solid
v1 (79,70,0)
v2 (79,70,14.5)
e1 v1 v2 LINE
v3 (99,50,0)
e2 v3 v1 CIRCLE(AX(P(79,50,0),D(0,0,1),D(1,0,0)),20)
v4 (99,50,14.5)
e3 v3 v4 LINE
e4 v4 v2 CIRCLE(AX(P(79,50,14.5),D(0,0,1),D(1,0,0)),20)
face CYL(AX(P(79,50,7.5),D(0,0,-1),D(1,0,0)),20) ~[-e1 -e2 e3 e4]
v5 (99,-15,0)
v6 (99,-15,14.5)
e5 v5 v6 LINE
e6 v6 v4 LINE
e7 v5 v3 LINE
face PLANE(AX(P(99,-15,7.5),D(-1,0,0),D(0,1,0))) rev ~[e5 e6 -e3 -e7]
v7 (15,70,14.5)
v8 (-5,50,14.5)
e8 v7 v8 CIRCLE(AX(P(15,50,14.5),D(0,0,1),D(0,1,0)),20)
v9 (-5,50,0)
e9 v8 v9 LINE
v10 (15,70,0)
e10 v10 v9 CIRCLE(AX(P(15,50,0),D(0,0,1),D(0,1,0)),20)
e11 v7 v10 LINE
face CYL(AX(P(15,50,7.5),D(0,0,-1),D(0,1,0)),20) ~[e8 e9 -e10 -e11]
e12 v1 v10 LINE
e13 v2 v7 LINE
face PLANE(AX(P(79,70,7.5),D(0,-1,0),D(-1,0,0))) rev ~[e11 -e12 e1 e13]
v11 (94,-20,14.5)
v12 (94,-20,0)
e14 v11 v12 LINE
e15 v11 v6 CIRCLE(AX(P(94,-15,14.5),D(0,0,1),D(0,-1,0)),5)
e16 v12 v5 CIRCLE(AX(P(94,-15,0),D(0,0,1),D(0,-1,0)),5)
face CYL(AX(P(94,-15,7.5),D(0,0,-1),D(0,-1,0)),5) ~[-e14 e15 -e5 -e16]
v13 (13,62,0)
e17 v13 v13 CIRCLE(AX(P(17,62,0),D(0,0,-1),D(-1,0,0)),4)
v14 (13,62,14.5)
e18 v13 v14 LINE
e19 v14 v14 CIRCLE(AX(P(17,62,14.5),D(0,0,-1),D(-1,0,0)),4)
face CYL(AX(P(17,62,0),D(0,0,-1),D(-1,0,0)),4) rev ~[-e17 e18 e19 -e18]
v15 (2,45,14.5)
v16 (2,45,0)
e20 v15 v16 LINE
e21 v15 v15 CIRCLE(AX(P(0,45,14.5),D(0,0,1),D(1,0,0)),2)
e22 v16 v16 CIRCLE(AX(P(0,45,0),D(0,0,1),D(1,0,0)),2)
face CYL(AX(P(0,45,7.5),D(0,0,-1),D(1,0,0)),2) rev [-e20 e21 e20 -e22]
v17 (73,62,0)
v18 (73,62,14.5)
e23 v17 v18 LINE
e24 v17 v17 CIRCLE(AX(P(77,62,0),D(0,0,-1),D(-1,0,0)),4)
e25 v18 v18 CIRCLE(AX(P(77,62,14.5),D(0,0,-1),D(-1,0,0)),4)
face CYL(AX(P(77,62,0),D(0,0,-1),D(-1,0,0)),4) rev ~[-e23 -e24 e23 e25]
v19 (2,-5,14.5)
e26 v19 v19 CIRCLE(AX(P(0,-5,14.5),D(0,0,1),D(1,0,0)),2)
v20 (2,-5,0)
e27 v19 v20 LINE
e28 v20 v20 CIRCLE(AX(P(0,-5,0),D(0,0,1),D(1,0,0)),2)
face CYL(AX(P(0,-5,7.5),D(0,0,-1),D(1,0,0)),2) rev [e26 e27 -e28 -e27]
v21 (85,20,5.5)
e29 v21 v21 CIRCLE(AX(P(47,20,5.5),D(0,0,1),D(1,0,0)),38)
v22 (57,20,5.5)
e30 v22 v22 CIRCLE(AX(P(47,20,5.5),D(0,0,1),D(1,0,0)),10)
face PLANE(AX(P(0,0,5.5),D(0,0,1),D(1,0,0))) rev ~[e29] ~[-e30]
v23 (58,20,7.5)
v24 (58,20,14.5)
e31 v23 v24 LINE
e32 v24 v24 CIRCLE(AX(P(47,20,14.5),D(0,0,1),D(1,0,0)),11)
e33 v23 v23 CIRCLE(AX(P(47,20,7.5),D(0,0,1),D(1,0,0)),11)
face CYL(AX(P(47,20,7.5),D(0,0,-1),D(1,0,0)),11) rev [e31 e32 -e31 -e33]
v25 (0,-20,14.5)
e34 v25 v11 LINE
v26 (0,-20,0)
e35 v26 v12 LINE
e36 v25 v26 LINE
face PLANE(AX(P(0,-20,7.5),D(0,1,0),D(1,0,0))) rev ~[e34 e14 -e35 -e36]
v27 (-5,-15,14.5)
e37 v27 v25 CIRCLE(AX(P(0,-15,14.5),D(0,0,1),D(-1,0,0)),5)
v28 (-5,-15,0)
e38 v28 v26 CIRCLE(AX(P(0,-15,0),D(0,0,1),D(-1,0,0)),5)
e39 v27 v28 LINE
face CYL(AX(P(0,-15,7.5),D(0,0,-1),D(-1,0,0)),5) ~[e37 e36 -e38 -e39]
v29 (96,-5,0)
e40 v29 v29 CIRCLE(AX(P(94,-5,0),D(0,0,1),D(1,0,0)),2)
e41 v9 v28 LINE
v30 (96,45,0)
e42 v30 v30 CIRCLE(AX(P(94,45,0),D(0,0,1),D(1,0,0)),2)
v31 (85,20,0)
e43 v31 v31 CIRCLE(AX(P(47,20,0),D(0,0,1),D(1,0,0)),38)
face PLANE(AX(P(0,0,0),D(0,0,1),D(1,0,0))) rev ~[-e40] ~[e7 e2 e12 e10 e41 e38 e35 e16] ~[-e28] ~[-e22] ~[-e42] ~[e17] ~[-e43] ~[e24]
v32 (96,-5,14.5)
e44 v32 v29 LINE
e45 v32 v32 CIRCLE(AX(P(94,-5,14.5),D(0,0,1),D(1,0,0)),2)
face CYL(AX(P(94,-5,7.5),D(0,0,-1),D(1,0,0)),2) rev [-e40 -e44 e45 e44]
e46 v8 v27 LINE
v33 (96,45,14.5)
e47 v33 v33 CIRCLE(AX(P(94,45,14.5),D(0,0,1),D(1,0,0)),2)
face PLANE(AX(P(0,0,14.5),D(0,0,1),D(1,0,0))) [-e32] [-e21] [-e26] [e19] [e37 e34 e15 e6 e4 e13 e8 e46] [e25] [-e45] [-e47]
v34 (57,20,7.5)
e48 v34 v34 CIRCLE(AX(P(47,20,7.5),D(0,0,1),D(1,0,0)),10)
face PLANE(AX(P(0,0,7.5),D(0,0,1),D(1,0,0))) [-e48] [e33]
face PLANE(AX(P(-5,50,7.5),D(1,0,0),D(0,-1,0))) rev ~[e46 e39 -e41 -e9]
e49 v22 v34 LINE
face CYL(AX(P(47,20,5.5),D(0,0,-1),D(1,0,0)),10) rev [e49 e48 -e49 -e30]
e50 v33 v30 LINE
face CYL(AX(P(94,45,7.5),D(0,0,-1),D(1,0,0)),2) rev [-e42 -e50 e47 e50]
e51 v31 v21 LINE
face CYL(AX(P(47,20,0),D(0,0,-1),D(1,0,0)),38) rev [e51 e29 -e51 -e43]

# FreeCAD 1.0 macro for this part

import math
import FreeCAD as App
import Part
import Sketcher
from FreeCAD import Vector
Q = App.Units.Quantity

doc = App.newDocument("Part")
body = doc.addObject("PartDesign::Body", "Body")

# Sketch on XY plane
sketch1 = doc.addObject("Sketcher::SketchObject", "Sketch")
body.addObject(sketch1)
sketch1.AttachmentSupport = (doc.XY_Plane, [""])
sketch1.MapMode = "FlatFace"
sketch1.addGeometry([
    Part.LineSegment(Vector(0, -20, 0), Vector(94, -20, 0)),  # 0
    Part.ArcOfCircle(Part.Circle(Vector(94, -15, 0), Vector(0, 0, 1), 5), math.radians(-90), math.radians(0)),  # 1
    Part.LineSegment(Vector(99, -15, 0), Vector(99, 50, 0)),  # 2
    Part.ArcOfCircle(Part.Circle(Vector(79, 50, 0), Vector(0, 0, 1), 20), math.radians(0), math.radians(90)),  # 3
    Part.LineSegment(Vector(79, 70, 0), Vector(15, 70, 0)),  # 4
    Part.ArcOfCircle(Part.Circle(Vector(15, 50, 0), Vector(0, 0, 1), 20), math.radians(90), math.radians(180)),  # 5
    Part.LineSegment(Vector(-5, 50, 0), Vector(-5, -15, 0)),  # 6
    Part.ArcOfCircle(Part.Circle(Vector(0, -15, 0), Vector(0, 0, 1), 5), math.radians(180), math.radians(270)),  # 7
    Part.Circle(Vector(0, -5, 0), Vector(0, 0, 1), 2),  # 8
    Part.Circle(Vector(94, -5, 0), Vector(0, 0, 1), 2),  # 9
    Part.Circle(Vector(0, 45, 0), Vector(0, 0, 1), 2),  # 10
    Part.Circle(Vector(94, 45, 0), Vector(0, 0, 1), 2),  # 11
    Part.Circle(Vector(47, 20, 0), Vector(0, 0, 1), 38),  # 12
], False)
sketch1.addConstraint([
    Sketcher.Constraint("Tangent", 0, 2, 1, 1),
    Sketcher.Constraint("Tangent", 1, 2, 2, 1),
    Sketcher.Constraint("Tangent", 2, 2, 3, 1),
    Sketcher.Constraint("Tangent", 3, 2, 4, 1),
    Sketcher.Constraint("Tangent", 4, 2, 5, 1),
    Sketcher.Constraint("Tangent", 5, 2, 6, 1),
    Sketcher.Constraint("Tangent", 6, 2, 7, 1),
    Sketcher.Constraint("Tangent", 7, 2, 0, 1),
    Sketcher.Constraint("Horizontal", 0),
    Sketcher.Constraint("Vertical", 2),
    Sketcher.Constraint("Horizontal", 4),
    Sketcher.Constraint("Vertical", 6),
    Sketcher.Constraint("Equal", 3, 5),
    Sketcher.Constraint("Equal", 1, 7),
    Sketcher.Constraint("Equal", 8, 9),
    Sketcher.Constraint("Equal", 9, 10),
    Sketcher.Constraint("Equal", 10, 11),
    Sketcher.Constraint("PointOnObject", 7, 3, -2),
    Sketcher.Constraint("PointOnObject", 8, 3, -2),
    Sketcher.Constraint("PointOnObject", 10, 3, -2),
    Sketcher.Constraint("Horizontal", 8, 3, 9, 3),
    Sketcher.Constraint("Horizontal", 10, 3, 11, 3),
    Sketcher.Constraint("Vertical", 1, 3, 9, 3),
    Sketcher.Constraint("Vertical", 9, 3, 11, 3),
    Sketcher.Constraint("Diameter", 12, Q("76 mm")),
    Sketcher.Constraint("Diameter", 8, Q("4 mm")),
    Sketcher.Constraint("Radius", 1, Q("5 mm")),
    Sketcher.Constraint("Radius", 3, Q("20 mm")),
    Sketcher.Constraint("DistanceX", 0, 1, 0, 2, Q("94 mm")),
    Sketcher.Constraint("DistanceY", 2, 1, 2, 2, Q("65 mm")),
    Sketcher.Constraint("DistanceY", 1, 3, -1, 1, Q("15 mm")),
    Sketcher.Constraint("DistanceY", 8, 3, -1, 1, Q("5 mm")),
    Sketcher.Constraint("DistanceY", -1, 1, 10, 3, Q("45 mm")),
    Sketcher.Constraint("DistanceX", -1, 1, 12, 3, Q("47 mm")),
    Sketcher.Constraint("DistanceY", -1, 1, 12, 3, Q("20 mm")),
])
pad1 = doc.addObject("PartDesign::Pad", "Pad")
body.addObject(pad1)
pad1.Profile = sketch1
pad1.Length = 5.5

# Sketch on XY plane
sketch2 = doc.addObject("Sketcher::SketchObject", "Sketch001")
body.addObject(sketch2)
sketch2.AttachmentSupport = (doc.XY_Plane, [""])
sketch2.MapMode = "FlatFace"
sketch2.AttachmentOffset = App.Placement(Vector(0, 0, 5.5), App.Rotation())
sketch2.addGeometry([
    Part.ArcOfCircle(Part.Circle(Vector(94, -15, 0), Vector(0, 0, 1), 5), math.radians(-90), math.radians(0)),  # 0
    Part.LineSegment(Vector(99, -15, 0), Vector(99, 50, 0)),  # 1
    Part.ArcOfCircle(Part.Circle(Vector(79, 50, 0), Vector(0, 0, 1), 20), math.radians(0), math.radians(90)),  # 2
    Part.LineSegment(Vector(79, 70, 0), Vector(15, 70, 0)),  # 3
    Part.ArcOfCircle(Part.Circle(Vector(15, 50, 0), Vector(0, 0, 1), 20), math.radians(90), math.radians(180)),  # 4
    Part.LineSegment(Vector(-5, 50, 0), Vector(-5, -15, 0)),  # 5
    Part.ArcOfCircle(Part.Circle(Vector(0, -15, 0), Vector(0, 0, 1), 5), math.radians(180), math.radians(270)),  # 6
    Part.LineSegment(Vector(0, -20, 0), Vector(94, -20, 0)),  # 7
    Part.Circle(Vector(47, 20, 0), Vector(0, 0, 1), 10),  # 8
    Part.Circle(Vector(0, -5, 0), Vector(0, 0, 1), 2),  # 9
    Part.Circle(Vector(94, -5, 0), Vector(0, 0, 1), 2),  # 10
    Part.Circle(Vector(94, 45, 0), Vector(0, 0, 1), 2),  # 11
    Part.Circle(Vector(0, 45, 0), Vector(0, 0, 1), 2),  # 12
], False)
sketch2.addConstraint([
    Sketcher.Constraint("Tangent", 0, 2, 1, 1),
    Sketcher.Constraint("Tangent", 1, 2, 2, 1),
    Sketcher.Constraint("Tangent", 2, 2, 3, 1),
    Sketcher.Constraint("Tangent", 3, 2, 4, 1),
    Sketcher.Constraint("Tangent", 4, 2, 5, 1),
    Sketcher.Constraint("Tangent", 5, 2, 6, 1),
    Sketcher.Constraint("Tangent", 6, 2, 7, 1),
    Sketcher.Constraint("Tangent", 7, 2, 0, 1),
    Sketcher.Constraint("Vertical", 1),
    Sketcher.Constraint("Horizontal", 3),
    Sketcher.Constraint("Vertical", 5),
    Sketcher.Constraint("Horizontal", 7),
    Sketcher.Constraint("Equal", 2, 4),
    Sketcher.Constraint("Equal", 0, 6),
    Sketcher.Constraint("Equal", 9, 10),
    Sketcher.Constraint("Equal", 10, 11),
    Sketcher.Constraint("Equal", 11, 12),
    Sketcher.Constraint("PointOnObject", 6, 3, -2),
    Sketcher.Constraint("PointOnObject", 9, 3, -2),
    Sketcher.Constraint("PointOnObject", 12, 3, -2),
    Sketcher.Constraint("Horizontal", 9, 3, 10, 3),
    Sketcher.Constraint("Horizontal", 11, 3, 12, 3),
    Sketcher.Constraint("Vertical", 0, 3, 10, 3),
    Sketcher.Constraint("Vertical", 10, 3, 11, 3),
    Sketcher.Constraint("Diameter", 8, Q("20 mm")),
    Sketcher.Constraint("Radius", 2, Q("20 mm")),
    Sketcher.Constraint("Diameter", 9, Q("4 mm")),
    Sketcher.Constraint("DistanceY", -1, 1, 8, 3, Q("20 mm")),
    Sketcher.Constraint("DistanceY", 6, 2, -1, 1, Q("20 mm")),
    Sketcher.Constraint("Radius", 0, Q("5 mm")),
    Sketcher.Constraint("DistanceX", 3, 2, 3, 1, Q("64 mm")),
    Sketcher.Constraint("DistanceY", 1, 1, 1, 2, Q("65 mm")),
    Sketcher.Constraint("DistanceX", -1, 1, 8, 3, Q("47 mm")),
    Sketcher.Constraint("DistanceY", 9, 3, -1, 1, Q("5 mm")),
    Sketcher.Constraint("DistanceY", -1, 1, 11, 3, Q("45 mm")),
])
pad2 = doc.addObject("PartDesign::Pad", "Pad001")
body.addObject(pad2)
pad2.Profile = sketch2
pad2.Length = 2

# Sketch on XY plane
sketch3 = doc.addObject("Sketcher::SketchObject", "Sketch002")
body.addObject(sketch3)
sketch3.AttachmentSupport = (doc.XY_Plane, [""])
sketch3.MapMode = "FlatFace"
sketch3.AttachmentOffset = App.Placement(Vector(0, 0, 7.5), App.Rotation())
sketch3.addGeometry([
    Part.ArcOfCircle(Part.Circle(Vector(94, -15, 0), Vector(0, 0, 1), 5), math.radians(-90), math.radians(0)),  # 0
    Part.LineSegment(Vector(99, -15, 0), Vector(99, 50, 0)),  # 1
    Part.ArcOfCircle(Part.Circle(Vector(79, 50, 0), Vector(0, 0, 1), 20), math.radians(0), math.radians(90)),  # 2
    Part.LineSegment(Vector(79, 70, 0), Vector(15, 70, 0)),  # 3
    Part.ArcOfCircle(Part.Circle(Vector(15, 50, 0), Vector(0, 0, 1), 20), math.radians(90), math.radians(180)),  # 4
    Part.LineSegment(Vector(-5, 50, 0), Vector(-5, -15, 0)),  # 5
    Part.ArcOfCircle(Part.Circle(Vector(0, -15, 0), Vector(0, 0, 1), 5), math.radians(180), math.radians(270)),  # 6
    Part.LineSegment(Vector(0, -20, 0), Vector(94, -20, 0)),  # 7
    Part.Circle(Vector(0, -5, 0), Vector(0, 0, 1), 2),  # 8
    Part.Circle(Vector(94, -5, 0), Vector(0, 0, 1), 2),  # 9
    Part.Circle(Vector(47, 20, 0), Vector(0, 0, 1), 11),  # 10
    Part.Circle(Vector(0, 45, 0), Vector(0, 0, 1), 2),  # 11
    Part.Circle(Vector(94, 45, 0), Vector(0, 0, 1), 2),  # 12
], False)
sketch3.addConstraint([
    Sketcher.Constraint("Tangent", 0, 2, 1, 1),
    Sketcher.Constraint("Tangent", 1, 2, 2, 1),
    Sketcher.Constraint("Tangent", 2, 2, 3, 1),
    Sketcher.Constraint("Tangent", 3, 2, 4, 1),
    Sketcher.Constraint("Tangent", 4, 2, 5, 1),
    Sketcher.Constraint("Tangent", 5, 2, 6, 1),
    Sketcher.Constraint("Tangent", 6, 2, 7, 1),
    Sketcher.Constraint("Tangent", 7, 2, 0, 1),
    Sketcher.Constraint("Vertical", 1),
    Sketcher.Constraint("Horizontal", 3),
    Sketcher.Constraint("Vertical", 5),
    Sketcher.Constraint("Horizontal", 7),
    Sketcher.Constraint("Equal", 2, 4),
    Sketcher.Constraint("Equal", 0, 6),
    Sketcher.Constraint("Equal", 8, 9),
    Sketcher.Constraint("Equal", 9, 11),
    Sketcher.Constraint("Equal", 11, 12),
    Sketcher.Constraint("PointOnObject", 6, 3, -2),
    Sketcher.Constraint("PointOnObject", 8, 3, -2),
    Sketcher.Constraint("PointOnObject", 11, 3, -2),
    Sketcher.Constraint("Horizontal", 8, 3, 9, 3),
    Sketcher.Constraint("Horizontal", 11, 3, 12, 3),
    Sketcher.Constraint("Vertical", 0, 3, 9, 3),
    Sketcher.Constraint("Vertical", 9, 3, 12, 3),
    Sketcher.Constraint("Diameter", 10, Q("22 mm")),
    Sketcher.Constraint("Diameter", 8, Q("4 mm")),
    Sketcher.Constraint("Radius", 0, Q("5 mm")),
    Sketcher.Constraint("Radius", 2, Q("20 mm")),
    Sketcher.Constraint("DistanceX", 3, 2, 3, 1, Q("64 mm")),
    Sketcher.Constraint("DistanceY", 1, 1, 1, 2, Q("65 mm")),
    Sketcher.Constraint("DistanceY", 0, 3, -1, 1, Q("15 mm")),
    Sketcher.Constraint("DistanceY", 8, 3, -1, 1, Q("5 mm")),
    Sketcher.Constraint("DistanceX", -1, 1, 10, 3, Q("47 mm")),
    Sketcher.Constraint("DistanceY", -1, 1, 10, 3, Q("20 mm")),
    Sketcher.Constraint("DistanceY", -1, 1, 11, 3, Q("45 mm")),
])
pad3 = doc.addObject("PartDesign::Pad", "Pad002")
body.addObject(pad3)
pad3.Profile = sketch3
pad3.Length = 7

# Sketch on XY plane
sketch4 = doc.addObject("Sketcher::SketchObject", "Sketch003")
body.addObject(sketch4)
sketch4.AttachmentSupport = (doc.XY_Plane, [""])
sketch4.MapMode = "FlatFace"
sketch4.addGeometry([
    Part.Circle(Vector(77, 62, 0), Vector(0, 0, 1), 4),
    Part.Circle(Vector(17, 62, 0), Vector(0, 0, 1), 4),
], False)
sketch4.addConstraint([
    Sketcher.Constraint("Equal", 0, 1),
    Sketcher.Constraint("Horizontal", 0, 3, 1, 3),
    Sketcher.Constraint("Diameter", 0, Q("8 mm")),
    Sketcher.Constraint("DistanceX", 1, 3, 0, 3, Q("60 mm")),
    Sketcher.Constraint("DistanceX", -1, 1, 0, 3, Q("77 mm")),
    Sketcher.Constraint("DistanceY", -1, 1, 0, 3, Q("62 mm")),
])
pocket1 = doc.addObject("PartDesign::Pocket", "Pocket")
body.addObject(pocket1)
pocket1.Profile = sketch4
pocket1.Type = "ThroughAll"
pocket1.Reversed = True

doc.recompute()
